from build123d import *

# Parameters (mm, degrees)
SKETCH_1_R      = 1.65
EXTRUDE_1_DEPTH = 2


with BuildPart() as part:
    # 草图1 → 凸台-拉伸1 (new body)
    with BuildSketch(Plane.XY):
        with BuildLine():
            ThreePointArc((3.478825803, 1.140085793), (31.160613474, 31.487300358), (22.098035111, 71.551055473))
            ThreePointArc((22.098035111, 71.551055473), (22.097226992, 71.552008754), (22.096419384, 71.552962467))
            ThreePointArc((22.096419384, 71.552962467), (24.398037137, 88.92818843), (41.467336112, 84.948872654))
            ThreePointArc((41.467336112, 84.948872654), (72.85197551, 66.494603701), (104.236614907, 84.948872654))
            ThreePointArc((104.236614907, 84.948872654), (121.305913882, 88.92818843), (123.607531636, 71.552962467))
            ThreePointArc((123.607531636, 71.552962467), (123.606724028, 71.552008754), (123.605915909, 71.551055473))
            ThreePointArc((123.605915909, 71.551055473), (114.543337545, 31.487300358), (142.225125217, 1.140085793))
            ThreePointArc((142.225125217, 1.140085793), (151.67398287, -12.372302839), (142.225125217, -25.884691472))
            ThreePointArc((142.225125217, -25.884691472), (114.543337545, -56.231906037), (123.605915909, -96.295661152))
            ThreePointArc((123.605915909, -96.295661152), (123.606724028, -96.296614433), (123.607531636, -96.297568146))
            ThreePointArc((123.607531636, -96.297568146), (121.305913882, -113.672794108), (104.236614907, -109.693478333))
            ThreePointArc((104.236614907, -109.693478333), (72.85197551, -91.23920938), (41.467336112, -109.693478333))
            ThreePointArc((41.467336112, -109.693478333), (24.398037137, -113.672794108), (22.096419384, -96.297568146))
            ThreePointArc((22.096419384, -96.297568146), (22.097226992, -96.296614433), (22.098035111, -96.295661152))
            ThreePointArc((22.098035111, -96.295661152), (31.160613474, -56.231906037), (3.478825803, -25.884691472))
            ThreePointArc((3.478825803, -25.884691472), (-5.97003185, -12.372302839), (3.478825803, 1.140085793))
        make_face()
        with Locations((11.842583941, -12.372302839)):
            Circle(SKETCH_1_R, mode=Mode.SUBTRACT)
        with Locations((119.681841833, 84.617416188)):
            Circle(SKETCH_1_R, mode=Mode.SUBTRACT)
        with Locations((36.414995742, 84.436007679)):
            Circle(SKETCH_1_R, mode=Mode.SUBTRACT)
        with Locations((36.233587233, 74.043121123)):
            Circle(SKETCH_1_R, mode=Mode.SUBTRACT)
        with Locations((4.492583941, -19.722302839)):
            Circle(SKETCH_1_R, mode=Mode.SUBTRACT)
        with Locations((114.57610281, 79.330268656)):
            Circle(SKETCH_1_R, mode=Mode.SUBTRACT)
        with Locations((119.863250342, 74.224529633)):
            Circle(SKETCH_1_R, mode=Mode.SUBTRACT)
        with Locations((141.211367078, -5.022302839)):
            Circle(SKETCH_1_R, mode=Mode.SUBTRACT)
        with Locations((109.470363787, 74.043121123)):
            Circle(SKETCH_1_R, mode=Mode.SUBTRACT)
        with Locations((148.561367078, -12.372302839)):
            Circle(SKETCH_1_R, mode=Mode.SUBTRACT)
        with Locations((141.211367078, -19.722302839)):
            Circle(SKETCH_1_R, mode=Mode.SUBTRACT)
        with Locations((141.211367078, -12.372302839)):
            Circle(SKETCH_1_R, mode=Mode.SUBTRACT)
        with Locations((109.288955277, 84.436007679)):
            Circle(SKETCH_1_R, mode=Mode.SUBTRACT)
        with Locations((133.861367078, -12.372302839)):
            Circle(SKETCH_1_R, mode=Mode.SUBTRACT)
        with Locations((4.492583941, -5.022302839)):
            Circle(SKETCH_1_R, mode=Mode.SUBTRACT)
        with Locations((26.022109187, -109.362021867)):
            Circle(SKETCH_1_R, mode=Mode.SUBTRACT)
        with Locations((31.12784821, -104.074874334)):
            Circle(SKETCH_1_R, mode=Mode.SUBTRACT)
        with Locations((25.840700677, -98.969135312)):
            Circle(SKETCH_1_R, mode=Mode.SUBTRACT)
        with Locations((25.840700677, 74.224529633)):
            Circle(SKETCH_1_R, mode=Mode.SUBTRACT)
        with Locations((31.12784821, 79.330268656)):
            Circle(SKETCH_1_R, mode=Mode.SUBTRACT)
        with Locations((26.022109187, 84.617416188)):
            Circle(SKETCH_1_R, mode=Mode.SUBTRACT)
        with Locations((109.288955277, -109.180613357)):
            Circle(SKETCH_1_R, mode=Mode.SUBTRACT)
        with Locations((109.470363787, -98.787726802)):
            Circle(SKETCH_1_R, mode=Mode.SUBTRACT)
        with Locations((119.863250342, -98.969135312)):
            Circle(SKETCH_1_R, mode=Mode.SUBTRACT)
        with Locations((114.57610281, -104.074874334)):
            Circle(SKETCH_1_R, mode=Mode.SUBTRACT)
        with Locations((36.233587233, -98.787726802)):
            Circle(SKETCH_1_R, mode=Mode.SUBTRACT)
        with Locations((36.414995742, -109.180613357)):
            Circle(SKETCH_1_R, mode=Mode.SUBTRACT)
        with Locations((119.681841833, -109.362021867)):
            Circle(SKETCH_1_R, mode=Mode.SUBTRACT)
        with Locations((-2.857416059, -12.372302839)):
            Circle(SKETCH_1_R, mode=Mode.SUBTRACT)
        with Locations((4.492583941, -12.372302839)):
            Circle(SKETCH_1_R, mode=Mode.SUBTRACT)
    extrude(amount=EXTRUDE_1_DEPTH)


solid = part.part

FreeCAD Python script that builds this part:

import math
import FreeCAD as App
import Part
import Sketcher

doc = App.newDocument("Part")
body = doc.addObject("PartDesign::Body", "Body")

# Sketch on XY plane
sketch1 = body.newObject("Sketcher::SketchObject", "Sketch")
sketch1.AttachmentSupport = (doc.getObject("XY_Plane"), [""])
sketch1.MapMode = "FlatFace"
sketch1.addGeometry([
    Part.ArcOfCircle(Part.Circle(App.Vector(-11.756531, 42.836147, 0), App.Vector(0, 0, 1), 44.392315), math.radians(-69.928162), math.radians(40.304083)),  # 0
    Part.ArcOfCircle(Part.Circle(App.Vector(8.416128, -12.372303, 0), App.Vector(0, 0, 1), 14.38616), math.radians(110.071838), math.radians(249.928162)),  # 1
    Part.ArcOfCircle(Part.Circle(App.Vector(-11.756531, -67.580753, 0), App.Vector(0, 0, 1), 44.392315), math.radians(-40.304083), math.radians(69.928162)),  # 2
    Part.ArcOfCircle(Part.Circle(App.Vector(23.878034, -97.805428, 0), App.Vector(0, 0, 1), 2.334051), math.radians(139.695923), math.radians(139.757279)),  # 3
    Part.ArcOfCircle(Part.Circle(App.Vector(31.127848, -103.941271, 0), App.Vector(0, 0, 1), 11.83186), math.radians(139.757266), math.radians(330.91133)),  # 4
    Part.ArcOfCircle(Part.Circle(App.Vector(72.851976, -127.153816, 0), App.Vector(0, 0, 1), 35.914607), math.radians(29.08867), math.radians(150.91133)),  # 5
    Part.ArcOfCircle(Part.Circle(App.Vector(114.576103, -103.941271, 0), App.Vector(0, 0, 1), 11.83186), math.radians(-150.91133), math.radians(40.242734)),  # 6
    Part.ArcOfCircle(Part.Circle(App.Vector(121.825917, -97.805428, 0), App.Vector(0, 0, 1), 2.334051), math.radians(40.242721), math.radians(40.304077)),  # 7
    Part.ArcOfCircle(Part.Circle(App.Vector(157.460482, -67.580753, 0), App.Vector(0, 0, 1), 44.392315), math.radians(110.071838), math.radians(220.304083)),  # 8
    Part.ArcOfCircle(Part.Circle(App.Vector(137.287823, -12.372303, 0), App.Vector(0, 0, 1), 14.38616), math.radians(-69.928162), math.radians(69.928162)),  # 9
    Part.ArcOfCircle(Part.Circle(App.Vector(157.460482, 42.836147, 0), App.Vector(0, 0, 1), 44.392315), math.radians(139.695917), math.radians(249.928162)),  # 10
    Part.ArcOfCircle(Part.Circle(App.Vector(121.825917, 73.060822, 0), App.Vector(0, 0, 1), 2.334051), math.radians(-40.304077), math.radians(-40.242721)),  # 11
    Part.ArcOfCircle(Part.Circle(App.Vector(114.576103, 79.196665, 0), App.Vector(0, 0, 1), 11.83186), math.radians(-40.242734), math.radians(150.91133)),  # 12
    Part.ArcOfCircle(Part.Circle(App.Vector(72.851976, 102.409211, 0), App.Vector(0, 0, 1), 35.914607), math.radians(-150.91133), math.radians(-29.08867)),  # 13
    Part.ArcOfCircle(Part.Circle(App.Vector(31.127848, 79.196665, 0), App.Vector(0, 0, 1), 11.83186), math.radians(29.08867), math.radians(220.242734)),  # 14
    Part.ArcOfCircle(Part.Circle(App.Vector(23.878034, 73.060822, 0), App.Vector(0, 0, 1), 2.334051), math.radians(-139.757279), math.radians(-139.695923)),  # 15
    Part.Circle(App.Vector(119.681842, -109.362022, 0), App.Vector(0, 0, 1), 1.65),  # 16
    Part.Circle(App.Vector(119.86325, -98.969135, 0), App.Vector(0, 0, 1), 1.65),  # 17
    Part.Circle(App.Vector(114.576103, -104.074874, 0), App.Vector(0, 0, 1), 1.65),  # 18
    Part.Circle(App.Vector(109.288955, -109.180613, 0), App.Vector(0, 0, 1), 1.65),  # 19
    Part.Circle(App.Vector(109.470364, -98.787727, 0), App.Vector(0, 0, 1), 1.65),  # 20
    Part.Circle(App.Vector(141.211367, -19.722303, 0), App.Vector(0, 0, 1), 1.65),  # 21
    Part.Circle(App.Vector(36.414996, -109.180613, 0), App.Vector(0, 0, 1), 1.65),  # 22
    Part.Circle(App.Vector(36.233587, -98.787727, 0), App.Vector(0, 0, 1), 1.65),  # 23
    Part.Circle(App.Vector(26.022109, -109.362022, 0), App.Vector(0, 0, 1), 1.65),  # 24
    Part.Circle(App.Vector(31.127848, -104.074874, 0), App.Vector(0, 0, 1), 1.65),  # 25
    Part.Circle(App.Vector(25.840701, -98.969135, 0), App.Vector(0, 0, 1), 1.65),  # 26
    Part.Circle(App.Vector(4.492584, -19.722303, 0), App.Vector(0, 0, 1), 1.65),  # 27
    Part.Circle(App.Vector(148.561367, -12.372303, 0), App.Vector(0, 0, 1), 1.65),  # 28
    Part.Circle(App.Vector(141.211367, -12.372303, 0), App.Vector(0, 0, 1), 1.65),  # 29
    Part.Circle(App.Vector(141.211367, -5.022303, 0), App.Vector(0, 0, 1), 1.65),  # 30
    Part.Circle(App.Vector(133.861367, -12.372303, 0), App.Vector(0, 0, 1), 1.65),  # 31
    Part.Circle(App.Vector(119.86325, 74.22453, 0), App.Vector(0, 0, 1), 1.65),  # 32
    Part.Circle(App.Vector(114.576103, 79.330269, 0), App.Vector(0, 0, 1), 1.65),  # 33
    Part.Circle(App.Vector(119.681842, 84.617416, 0), App.Vector(0, 0, 1), 1.65),  # 34
    Part.Circle(App.Vector(109.470364, 74.043121, 0), App.Vector(0, 0, 1), 1.65),  # 35
    Part.Circle(App.Vector(109.288955, 84.436008, 0), App.Vector(0, 0, 1), 1.65),  # 36
    Part.Circle(App.Vector(11.842584, -12.372303, 0), App.Vector(0, 0, 1), 1.65),  # 37
    Part.Circle(App.Vector(4.492584, -12.372303, 0), App.Vector(0, 0, 1), 1.65),  # 38
    Part.Circle(App.Vector(-2.857416, -12.372303, 0), App.Vector(0, 0, 1), 1.65),  # 39
    Part.Circle(App.Vector(4.492584, -5.022303, 0), App.Vector(0, 0, 1), 1.65),  # 40
    Part.Circle(App.Vector(36.233587, 74.043121, 0), App.Vector(0, 0, 1), 1.65),  # 41
    Part.Circle(App.Vector(36.414996, 84.436008, 0), App.Vector(0, 0, 1), 1.65),  # 42
    Part.Circle(App.Vector(31.127848, 79.330269, 0), App.Vector(0, 0, 1), 1.65),  # 43
    Part.Circle(App.Vector(25.840701, 74.22453, 0), App.Vector(0, 0, 1), 1.65),  # 44
    Part.Circle(App.Vector(26.022109, 84.617416, 0), App.Vector(0, 0, 1), 1.65),  # 45
], False)
sketch1.addConstraint([
    Sketcher.Constraint("Tangent", 0, 1, 1, 1),
    Sketcher.Constraint("Tangent", 1, 2, 2, 2),
    Sketcher.Constraint("Tangent", 2, 1, 3, 1),
    Sketcher.Constraint("Tangent", 3, 2, 4, 1),
    Sketcher.Constraint("Tangent", 4, 2, 5, 2),
    Sketcher.Constraint("Tangent", 5, 1, 6, 1),
    Sketcher.Constraint("Tangent", 6, 2, 7, 1),
    Sketcher.Constraint("Tangent", 7, 2, 8, 2),
    Sketcher.Constraint("Tangent", 8, 1, 9, 1),
    Sketcher.Constraint("Tangent", 9, 2, 10, 2),
    Sketcher.Constraint("Tangent", 10, 1, 11, 1),
    Sketcher.Constraint("Tangent", 11, 2, 12, 1),
    Sketcher.Constraint("Tangent", 12, 2, 13, 2),
    Sketcher.Constraint("Tangent", 13, 1, 14, 1),
    Sketcher.Constraint("Tangent", 14, 2, 15, 1),
    Sketcher.Constraint("Tangent", 15, 2, 0, 2),
    Sketcher.Constraint("Equal", 0, 2),
    Sketcher.Constraint("Equal", 4, 6),
    Sketcher.Constraint("Equal", 3, 7),
    Sketcher.Constraint("Equal", 2, 8),
    Sketcher.Constraint("Equal", 1, 9),
    Sketcher.Constraint("Equal", 8, 10),
    Sketcher.Constraint("Equal", 7, 11),
    Sketcher.Constraint("Equal", 6, 12),
    Sketcher.Constraint("Equal", 5, 13),
    Sketcher.Constraint("Equal", 12, 14),
    Sketcher.Constraint("Equal", 11, 15),
    Sketcher.Constraint("Equal", 16, 17),
    Sketcher.Constraint("Equal", 17, 18),
    Sketcher.Constraint("Equal", 18, 19),
    Sketcher.Constraint("Equal", 19, 20),
    Sketcher.Constraint("Equal", 20, 21),
    Sketcher.Constraint("Equal", 21, 22),
    Sketcher.Constraint("Equal", 22, 23),
    Sketcher.Constraint("Equal", 23, 24),
    Sketcher.Constraint("Equal", 24, 25),
    Sketcher.Constraint("Equal", 25, 26),
    Sketcher.Constraint("Equal", 26, 27),
    Sketcher.Constraint("Equal", 27, 28),
    Sketcher.Constraint("Equal", 28, 29),
    Sketcher.Constraint("Equal", 29, 30),
    Sketcher.Constraint("Equal", 30, 31),
    Sketcher.Constraint("Equal", 31, 32),
    Sketcher.Constraint("Equal", 32, 33),
    Sketcher.Constraint("Equal", 33, 34),
    Sketcher.Constraint("Equal", 34, 35),
    Sketcher.Constraint("Equal", 35, 36),
    Sketcher.Constraint("Equal", 36, 37),
    Sketcher.Constraint("Equal", 37, 38),
    Sketcher.Constraint("Equal", 38, 39),
    Sketcher.Constraint("Equal", 39, 40),
    Sketcher.Constraint("Equal", 40, 41),
    Sketcher.Constraint("Equal", 41, 42),
    Sketcher.Constraint("Equal", 42, 43),
    Sketcher.Constraint("Equal", 43, 44),
    Sketcher.Constraint("Equal", 44, 45),
    Sketcher.Constraint("Horizontal", 4, 3, 6, 3),
    Sketcher.Constraint("Horizontal", 3, 3, 7, 3),
    Sketcher.Constraint("Horizontal", 2, 3, 8, 3),
    Sketcher.Constraint("Horizontal", 1, 3, 9, 3),
    Sketcher.Constraint("Horizontal", 0, 3, 10, 3),
    Sketcher.Constraint("Horizontal", 12, 3, 14, 3),
    Sketcher.Constraint("Horizontal", 11, 3, 15, 3),
    Sketcher.Constraint("Horizontal", 19, 3, 22, 3),
    Sketcher.Constraint("Horizontal", 20, 3, 23, 3),
    Sketcher.Constraint("Horizontal", 16, 3, 24, 3),
    Sketcher.Constraint("Horizontal", 18, 3, 25, 3),
    Sketcher.Constraint("Horizontal", 17, 3, 26, 3),
    Sketcher.Constraint("Horizontal", 21, 3, 27, 3),
    Sketcher.Constraint("Horizontal", 9, 3, 28, 3),
    Sketcher.Constraint("Horizontal", 28, 3, 29, 3),
    Sketcher.Constraint("Horizontal", 29, 3, 31, 3),
    Sketcher.Constraint("Horizontal", 31, 3, 37, 3),
    Sketcher.Constraint("Horizontal", 37, 3, 38, 3),
    Sketcher.Constraint("Horizontal", 38, 3, 39, 3),
    Sketcher.Constraint("Horizontal", 30, 3, 40, 3),
    Sketcher.Constraint("Horizontal", 35, 3, 41, 3),
    Sketcher.Constraint("Horizontal", 36, 3, 42, 3),
    Sketcher.Constraint("Horizontal", 33, 3, 43, 3),
    Sketcher.Constraint("Horizontal", 32, 3, 44, 3),
    Sketcher.Constraint("Horizontal", 34, 3, 45, 3),
    Sketcher.Constraint("Vertical", 0, 3, 2, 3),
    Sketcher.Constraint("Vertical", 7, 3, 11, 3),
    Sketcher.Constraint("Vertical", 6, 3, 12, 3),
    Sketcher.Constraint("Vertical", 12, 3, 18, 3),
    Sketcher.Constraint("Vertical", 14, 3, 25, 3),
    Sketcher.Constraint("Vertical", 21, 3, 29, 3),
    Sketcher.Constraint("Vertical", 29, 3, 30, 3),
    Sketcher.Constraint("Vertical", 17, 3, 32, 3),
    Sketcher.Constraint("Vertical", 18, 3, 33, 3),
    Sketcher.Constraint("Vertical", 16, 3, 34, 3),
    Sketcher.Constraint("Vertical", 20, 3, 35, 3),
    Sketcher.Constraint("Vertical", 19, 3, 36, 3),
    Sketcher.Constraint("Vertical", 27, 3, 38, 3),
    Sketcher.Constraint("Vertical", 38, 3, 40, 3),
    Sketcher.Constraint("Vertical", 23, 3, 41, 3),
    Sketcher.Constraint("Vertical", 22, 3, 42, 3),
    Sketcher.Constraint("Vertical", 25, 3, 43, 3),
    Sketcher.Constraint("Vertical", 26, 3, 44, 3),
    Sketcher.Constraint("Vertical", 24, 3, 45, 3),
    Sketcher.Constraint("Diameter", 16, 3.3),
    Sketcher.Constraint("Radius", 1, 14.38616),
    Sketcher.Constraint("Radius", 3, 2.334051),
    Sketcher.Constraint("Radius", 4, 11.83186),
    Sketcher.Constraint("Radius", 0, 44.392315),
    Sketcher.Constraint("Radius", 5, 35.914607),
    Sketcher.Constraint("DistanceX", -1, 1, 26, 3, 25.840701),
    Sketcher.Constraint("DistanceX", 0, 3, -1, 1, 11.756531),
    Sketcher.Constraint("DistanceX", -1, 1, 1, 3, 8.416128),
    Sketcher.Constraint("DistanceY", 3, 3, -1, 1, 97.805428),
    Sketcher.Constraint("DistanceX", -1, 1, 4, 3, 31.127848),
    Sketcher.Constraint("DistanceY", 4, 3, -1, 1, 103.941271),
    Sketcher.Constraint("DistanceY", -1, 1, 13, 3, 102.409211),
    Sketcher.Constraint("DistanceX", -1, 1, 16, 3, 119.681842),
    Sketcher.Constraint("DistanceY", 16, 3, -1, 1, 109.362022),
    Sketcher.Constraint("DistanceX", -1, 1, 17, 3, 119.86325),
    Sketcher.Constraint("DistanceX", -1, 1, 24, 3, 26.022109),
    Sketcher.Constraint("DistanceY", -1, 1, 32, 3, 74.22453),
    Sketcher.Constraint("DistanceY", -1, 1, 33, 3, 79.330269),
    Sketcher.Constraint("DistanceY", -1, 1, 35, 3, 74.043121),
    Sketcher.Constraint("DistanceY", 17, 3, -1, 1, 98.969135),
    Sketcher.Constraint("DistanceY", 18, 3, -1, 1, 104.074874),
    Sketcher.Constraint("DistanceX", -1, 1, 19, 3, 109.288955),
    Sketcher.Constraint("DistanceY", 19, 3, -1, 1, 109.180613),
    Sketcher.Constraint("DistanceX", -1, 1, 20, 3, 109.470364),
    Sketcher.Constraint("DistanceY", 20, 3, -1, 1, 98.787727),
    Sketcher.Constraint("DistanceX", -1, 1, 21, 3, 141.211367),
    Sketcher.Constraint("DistanceY", 21, 3, -1, 1, 19.722303),
    Sketcher.Constraint("DistanceX", -1, 1, 22, 3, 36.414996),
    Sketcher.Constraint("DistanceX", -1, 1, 23, 3, 36.233587),
    Sketcher.Constraint("DistanceX", -1, 1, 27, 3, 4.492584),
    Sketcher.Constraint("DistanceX", -1, 1, 28, 3, 148.561367),
    Sketcher.Constraint("DistanceY", 30, 3, -1, 1, 5.022303),
    Sketcher.Constraint("DistanceX", -1, 1, 31, 3, 133.861367),
    Sketcher.Constraint("DistanceY", -1, 1, 34, 3, 84.617416),
    Sketcher.Constraint("DistanceY", -1, 1, 36, 3, 84.436008),
    Sketcher.Constraint("DistanceX", -1, 1, 37, 3, 11.842584),
    Sketcher.Constraint("DistanceX", 39, 3, -1, 1, 2.857416),
])
pad1 = body.newObject("PartDesign::Pad", "Pad")
pad1.Profile = sketch1
pad1.Length = 2

doc.recompute()
